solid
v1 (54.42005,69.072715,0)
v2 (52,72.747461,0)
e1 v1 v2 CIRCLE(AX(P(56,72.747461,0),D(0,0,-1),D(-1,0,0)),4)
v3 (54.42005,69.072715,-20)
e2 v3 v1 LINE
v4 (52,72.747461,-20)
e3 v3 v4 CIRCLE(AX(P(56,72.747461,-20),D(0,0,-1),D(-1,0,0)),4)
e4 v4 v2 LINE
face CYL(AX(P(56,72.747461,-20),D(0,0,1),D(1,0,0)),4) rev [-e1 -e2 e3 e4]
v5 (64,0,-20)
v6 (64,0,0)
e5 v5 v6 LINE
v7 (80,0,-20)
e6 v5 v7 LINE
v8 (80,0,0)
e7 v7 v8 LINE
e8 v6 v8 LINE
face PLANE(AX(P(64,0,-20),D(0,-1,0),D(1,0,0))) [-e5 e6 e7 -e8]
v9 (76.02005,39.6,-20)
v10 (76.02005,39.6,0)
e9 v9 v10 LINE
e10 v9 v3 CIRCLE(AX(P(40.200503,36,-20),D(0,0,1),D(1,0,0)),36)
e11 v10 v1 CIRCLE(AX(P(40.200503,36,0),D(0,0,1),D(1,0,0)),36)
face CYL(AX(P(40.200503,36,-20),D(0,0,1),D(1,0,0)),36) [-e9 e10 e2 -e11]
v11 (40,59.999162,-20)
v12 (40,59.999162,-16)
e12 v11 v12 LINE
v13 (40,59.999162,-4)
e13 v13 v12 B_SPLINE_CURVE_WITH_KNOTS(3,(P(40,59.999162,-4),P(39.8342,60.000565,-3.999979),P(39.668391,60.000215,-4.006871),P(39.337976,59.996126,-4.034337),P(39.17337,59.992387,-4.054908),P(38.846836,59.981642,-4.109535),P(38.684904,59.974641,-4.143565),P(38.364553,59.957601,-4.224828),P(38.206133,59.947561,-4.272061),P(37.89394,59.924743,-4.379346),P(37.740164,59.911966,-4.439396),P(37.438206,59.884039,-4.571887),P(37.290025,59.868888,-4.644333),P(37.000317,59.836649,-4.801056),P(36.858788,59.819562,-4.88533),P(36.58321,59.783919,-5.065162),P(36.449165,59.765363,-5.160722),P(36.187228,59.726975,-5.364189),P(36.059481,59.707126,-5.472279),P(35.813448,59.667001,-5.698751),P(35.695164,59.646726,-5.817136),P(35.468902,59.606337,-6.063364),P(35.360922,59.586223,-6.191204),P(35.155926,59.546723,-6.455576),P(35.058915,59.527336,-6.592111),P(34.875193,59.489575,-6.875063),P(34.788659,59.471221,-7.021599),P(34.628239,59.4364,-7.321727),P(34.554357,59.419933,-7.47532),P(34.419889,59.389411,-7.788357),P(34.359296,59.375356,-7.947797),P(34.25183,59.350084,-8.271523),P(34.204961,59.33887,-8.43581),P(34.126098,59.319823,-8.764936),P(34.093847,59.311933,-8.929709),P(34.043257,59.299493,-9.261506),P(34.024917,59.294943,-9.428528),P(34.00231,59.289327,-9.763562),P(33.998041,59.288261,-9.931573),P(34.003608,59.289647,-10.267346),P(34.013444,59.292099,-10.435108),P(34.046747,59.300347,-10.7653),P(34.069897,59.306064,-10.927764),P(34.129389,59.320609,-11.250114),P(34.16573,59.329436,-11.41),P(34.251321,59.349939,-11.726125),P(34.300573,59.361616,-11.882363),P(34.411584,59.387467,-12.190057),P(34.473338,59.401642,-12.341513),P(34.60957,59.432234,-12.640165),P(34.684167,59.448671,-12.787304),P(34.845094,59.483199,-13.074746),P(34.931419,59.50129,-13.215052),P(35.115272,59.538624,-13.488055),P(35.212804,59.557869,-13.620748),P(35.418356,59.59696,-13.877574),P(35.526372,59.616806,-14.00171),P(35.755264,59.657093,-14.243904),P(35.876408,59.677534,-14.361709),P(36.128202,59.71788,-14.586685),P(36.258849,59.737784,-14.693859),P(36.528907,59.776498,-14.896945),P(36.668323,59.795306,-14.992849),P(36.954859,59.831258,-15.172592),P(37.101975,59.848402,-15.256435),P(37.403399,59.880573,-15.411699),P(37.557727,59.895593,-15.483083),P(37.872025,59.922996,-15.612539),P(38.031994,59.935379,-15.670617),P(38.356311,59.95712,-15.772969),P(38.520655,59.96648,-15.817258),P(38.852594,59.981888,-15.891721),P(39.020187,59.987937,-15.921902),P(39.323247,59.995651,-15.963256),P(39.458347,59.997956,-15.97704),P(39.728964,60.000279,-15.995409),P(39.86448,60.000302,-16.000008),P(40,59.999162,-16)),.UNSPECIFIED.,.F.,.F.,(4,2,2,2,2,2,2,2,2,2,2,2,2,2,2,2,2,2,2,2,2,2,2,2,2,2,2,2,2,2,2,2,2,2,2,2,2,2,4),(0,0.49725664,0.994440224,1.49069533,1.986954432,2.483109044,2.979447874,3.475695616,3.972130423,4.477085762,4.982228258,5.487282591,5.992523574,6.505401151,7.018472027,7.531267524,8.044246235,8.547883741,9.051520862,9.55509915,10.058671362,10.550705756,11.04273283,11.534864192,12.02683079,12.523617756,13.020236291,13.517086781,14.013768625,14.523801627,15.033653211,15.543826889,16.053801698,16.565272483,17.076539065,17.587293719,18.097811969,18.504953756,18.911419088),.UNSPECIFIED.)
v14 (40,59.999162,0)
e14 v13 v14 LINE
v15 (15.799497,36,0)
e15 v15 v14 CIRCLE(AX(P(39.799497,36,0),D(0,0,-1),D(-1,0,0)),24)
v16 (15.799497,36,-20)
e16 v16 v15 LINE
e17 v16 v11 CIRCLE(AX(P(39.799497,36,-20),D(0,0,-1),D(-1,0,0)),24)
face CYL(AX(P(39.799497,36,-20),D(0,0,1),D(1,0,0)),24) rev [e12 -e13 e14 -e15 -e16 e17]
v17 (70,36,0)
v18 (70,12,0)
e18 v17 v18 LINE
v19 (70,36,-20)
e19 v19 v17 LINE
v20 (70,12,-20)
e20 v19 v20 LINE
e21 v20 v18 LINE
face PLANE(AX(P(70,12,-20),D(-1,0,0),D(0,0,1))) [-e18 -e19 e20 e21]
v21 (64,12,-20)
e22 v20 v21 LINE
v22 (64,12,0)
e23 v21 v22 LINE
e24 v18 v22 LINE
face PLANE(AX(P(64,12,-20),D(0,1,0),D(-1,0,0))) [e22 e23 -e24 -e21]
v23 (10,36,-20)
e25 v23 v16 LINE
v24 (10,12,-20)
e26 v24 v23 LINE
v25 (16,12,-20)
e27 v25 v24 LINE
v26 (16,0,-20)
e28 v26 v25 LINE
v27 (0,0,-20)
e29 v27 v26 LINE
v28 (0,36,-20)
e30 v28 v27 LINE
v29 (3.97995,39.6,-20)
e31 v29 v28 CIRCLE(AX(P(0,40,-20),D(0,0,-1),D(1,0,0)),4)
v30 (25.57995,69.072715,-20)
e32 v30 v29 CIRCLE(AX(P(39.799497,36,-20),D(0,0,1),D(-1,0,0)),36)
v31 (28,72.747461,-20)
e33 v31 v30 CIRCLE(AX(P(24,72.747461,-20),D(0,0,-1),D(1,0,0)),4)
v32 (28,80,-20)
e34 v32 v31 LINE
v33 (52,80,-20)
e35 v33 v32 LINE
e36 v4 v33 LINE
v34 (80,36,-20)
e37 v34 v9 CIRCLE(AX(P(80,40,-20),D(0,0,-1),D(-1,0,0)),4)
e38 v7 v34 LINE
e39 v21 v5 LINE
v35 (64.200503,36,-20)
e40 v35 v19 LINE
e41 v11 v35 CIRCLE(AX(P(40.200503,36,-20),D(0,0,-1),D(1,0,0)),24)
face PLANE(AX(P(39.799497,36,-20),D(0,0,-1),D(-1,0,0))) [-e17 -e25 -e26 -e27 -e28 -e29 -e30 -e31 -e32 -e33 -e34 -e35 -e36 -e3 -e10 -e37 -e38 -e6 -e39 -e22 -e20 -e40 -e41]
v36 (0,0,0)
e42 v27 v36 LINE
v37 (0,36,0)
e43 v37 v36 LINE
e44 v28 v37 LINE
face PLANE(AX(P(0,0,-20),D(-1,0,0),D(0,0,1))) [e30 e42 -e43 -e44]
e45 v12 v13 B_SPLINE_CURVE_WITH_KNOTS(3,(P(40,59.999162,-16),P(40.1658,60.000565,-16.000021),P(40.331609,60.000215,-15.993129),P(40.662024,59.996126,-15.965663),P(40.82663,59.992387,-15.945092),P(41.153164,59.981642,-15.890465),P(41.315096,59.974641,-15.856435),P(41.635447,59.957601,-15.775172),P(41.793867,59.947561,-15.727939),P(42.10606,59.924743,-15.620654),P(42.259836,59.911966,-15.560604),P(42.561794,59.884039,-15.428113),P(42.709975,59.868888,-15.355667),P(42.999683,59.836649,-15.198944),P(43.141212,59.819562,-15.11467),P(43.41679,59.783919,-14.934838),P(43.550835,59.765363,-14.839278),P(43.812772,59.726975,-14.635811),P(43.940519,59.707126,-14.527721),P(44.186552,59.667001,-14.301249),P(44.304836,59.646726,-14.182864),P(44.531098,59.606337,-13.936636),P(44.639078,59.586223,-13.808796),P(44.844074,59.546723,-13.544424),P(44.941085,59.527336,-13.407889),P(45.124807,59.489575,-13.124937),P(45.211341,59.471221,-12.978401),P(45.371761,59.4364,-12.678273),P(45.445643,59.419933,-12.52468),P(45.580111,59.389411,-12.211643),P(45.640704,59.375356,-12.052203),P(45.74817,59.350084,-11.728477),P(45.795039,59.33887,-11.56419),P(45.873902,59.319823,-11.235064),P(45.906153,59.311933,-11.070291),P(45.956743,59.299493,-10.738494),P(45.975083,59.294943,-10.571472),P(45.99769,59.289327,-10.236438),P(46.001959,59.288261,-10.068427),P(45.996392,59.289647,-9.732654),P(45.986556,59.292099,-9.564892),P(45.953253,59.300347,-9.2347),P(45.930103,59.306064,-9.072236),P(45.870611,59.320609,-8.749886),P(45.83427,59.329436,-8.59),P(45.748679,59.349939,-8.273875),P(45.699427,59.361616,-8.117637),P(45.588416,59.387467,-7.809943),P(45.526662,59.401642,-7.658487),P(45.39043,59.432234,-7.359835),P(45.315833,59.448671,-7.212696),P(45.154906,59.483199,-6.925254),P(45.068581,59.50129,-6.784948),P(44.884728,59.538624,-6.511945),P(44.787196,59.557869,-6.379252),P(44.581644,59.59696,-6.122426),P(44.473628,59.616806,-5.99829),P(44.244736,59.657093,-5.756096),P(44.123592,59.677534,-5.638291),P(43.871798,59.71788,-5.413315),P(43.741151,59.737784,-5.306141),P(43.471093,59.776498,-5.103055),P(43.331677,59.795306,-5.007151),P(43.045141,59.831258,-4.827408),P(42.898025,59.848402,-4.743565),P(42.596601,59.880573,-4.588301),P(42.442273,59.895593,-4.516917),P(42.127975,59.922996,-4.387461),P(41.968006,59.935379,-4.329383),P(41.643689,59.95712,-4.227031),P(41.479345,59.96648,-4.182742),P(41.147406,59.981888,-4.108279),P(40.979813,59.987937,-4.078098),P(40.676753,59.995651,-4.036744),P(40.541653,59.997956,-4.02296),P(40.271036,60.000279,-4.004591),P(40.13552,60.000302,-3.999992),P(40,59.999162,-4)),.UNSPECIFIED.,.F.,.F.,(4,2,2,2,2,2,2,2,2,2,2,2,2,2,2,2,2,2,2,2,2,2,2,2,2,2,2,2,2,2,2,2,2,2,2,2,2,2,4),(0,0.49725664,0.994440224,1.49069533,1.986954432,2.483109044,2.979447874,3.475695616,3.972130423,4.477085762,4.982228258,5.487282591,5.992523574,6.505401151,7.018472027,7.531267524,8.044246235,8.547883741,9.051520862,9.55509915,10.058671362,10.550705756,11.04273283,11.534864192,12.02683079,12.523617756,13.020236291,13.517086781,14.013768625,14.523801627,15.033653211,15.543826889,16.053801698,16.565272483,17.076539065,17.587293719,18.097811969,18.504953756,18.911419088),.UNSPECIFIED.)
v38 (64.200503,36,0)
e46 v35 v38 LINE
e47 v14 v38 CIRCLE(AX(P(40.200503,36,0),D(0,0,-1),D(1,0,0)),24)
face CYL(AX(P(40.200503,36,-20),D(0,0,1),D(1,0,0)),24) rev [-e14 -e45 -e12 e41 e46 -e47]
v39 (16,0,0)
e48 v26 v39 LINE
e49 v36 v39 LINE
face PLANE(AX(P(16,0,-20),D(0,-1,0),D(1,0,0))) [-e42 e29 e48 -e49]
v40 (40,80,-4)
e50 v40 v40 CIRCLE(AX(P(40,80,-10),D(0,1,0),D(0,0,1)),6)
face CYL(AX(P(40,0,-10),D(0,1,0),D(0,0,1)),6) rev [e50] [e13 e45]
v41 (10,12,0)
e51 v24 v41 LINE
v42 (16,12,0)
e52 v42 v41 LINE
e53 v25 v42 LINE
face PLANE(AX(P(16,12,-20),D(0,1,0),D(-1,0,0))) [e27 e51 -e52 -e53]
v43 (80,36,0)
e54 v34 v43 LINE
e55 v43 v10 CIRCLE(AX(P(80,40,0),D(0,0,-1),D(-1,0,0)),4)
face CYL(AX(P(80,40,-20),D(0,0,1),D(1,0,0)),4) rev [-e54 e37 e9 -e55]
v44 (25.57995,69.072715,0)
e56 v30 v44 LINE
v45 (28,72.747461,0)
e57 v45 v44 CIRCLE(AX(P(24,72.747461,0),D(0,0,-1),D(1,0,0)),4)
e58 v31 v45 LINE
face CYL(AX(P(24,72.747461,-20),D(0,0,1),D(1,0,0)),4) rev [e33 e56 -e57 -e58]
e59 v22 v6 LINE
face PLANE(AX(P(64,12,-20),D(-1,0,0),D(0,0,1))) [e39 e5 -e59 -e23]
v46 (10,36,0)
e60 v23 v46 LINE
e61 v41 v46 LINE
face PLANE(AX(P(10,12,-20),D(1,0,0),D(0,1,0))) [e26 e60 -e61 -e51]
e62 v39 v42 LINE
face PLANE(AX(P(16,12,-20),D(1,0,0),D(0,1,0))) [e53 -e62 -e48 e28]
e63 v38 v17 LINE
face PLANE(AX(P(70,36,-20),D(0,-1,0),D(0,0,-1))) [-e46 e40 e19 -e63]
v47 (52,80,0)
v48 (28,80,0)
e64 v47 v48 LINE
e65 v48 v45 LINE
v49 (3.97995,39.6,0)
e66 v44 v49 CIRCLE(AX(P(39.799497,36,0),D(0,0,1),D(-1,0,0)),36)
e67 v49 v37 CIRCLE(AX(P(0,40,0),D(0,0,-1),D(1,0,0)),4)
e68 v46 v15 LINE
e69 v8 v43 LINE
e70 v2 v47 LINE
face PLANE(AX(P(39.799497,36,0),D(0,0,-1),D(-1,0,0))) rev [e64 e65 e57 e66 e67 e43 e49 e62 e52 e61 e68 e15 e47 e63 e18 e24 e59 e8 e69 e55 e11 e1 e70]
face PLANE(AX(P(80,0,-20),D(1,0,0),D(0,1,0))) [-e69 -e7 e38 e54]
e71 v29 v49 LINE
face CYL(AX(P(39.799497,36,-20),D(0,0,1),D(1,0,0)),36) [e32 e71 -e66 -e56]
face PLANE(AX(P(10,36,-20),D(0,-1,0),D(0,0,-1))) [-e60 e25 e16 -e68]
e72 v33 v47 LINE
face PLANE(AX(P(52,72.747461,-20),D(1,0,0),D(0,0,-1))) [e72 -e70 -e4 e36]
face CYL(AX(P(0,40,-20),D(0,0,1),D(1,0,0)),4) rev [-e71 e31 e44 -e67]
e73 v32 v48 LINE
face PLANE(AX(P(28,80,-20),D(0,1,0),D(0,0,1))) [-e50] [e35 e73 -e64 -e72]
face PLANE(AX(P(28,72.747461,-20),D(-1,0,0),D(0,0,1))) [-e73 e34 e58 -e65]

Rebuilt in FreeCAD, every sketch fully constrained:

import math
import FreeCAD as App
import Part
import Sketcher
from FreeCAD import Vector

doc = App.newDocument("Part")
body = doc.addObject("PartDesign::Body", "Body")

sketch1 = doc.addObject("Sketcher::SketchObject", "Sketch")
body.addObject(sketch1)
sketch1.AttachmentSupport = (doc.XY_Plane, [""])
sketch1.MapMode = "FlatFace"
sketch1.addGeometry([
    Part.LineSegment(Vector(28, 80, 0), Vector(28, 72.747461, 0)),
    Part.ArcOfCircle(Part.Circle(Vector(24, 72.747461, 0), Vector(0, 0, 1), 4), math.radians(-66.734809), math.radians(0)),
    Part.ArcOfCircle(Part.Circle(Vector(39.799497, 36, 0), Vector(0, 0, 1), 36), math.radians(113.265191), math.radians(174.26083)),
    Part.ArcOfCircle(Part.Circle(Vector(0, 40, 0), Vector(0, 0, 1), 4), math.radians(-90), math.radians(-5.73917)),
    Part.LineSegment(Vector(0, 36, 0), Vector(0, 0, 0)),
    Part.LineSegment(Vector(0, 0, 0), Vector(16, 0, 0)),
    Part.LineSegment(Vector(16, 0, 0), Vector(16, 12, 0)),
    Part.LineSegment(Vector(16, 12, 0), Vector(10, 12, 0)),
    Part.LineSegment(Vector(10, 12, 0), Vector(10, 36, 0)),
    Part.LineSegment(Vector(10, 36, 0), Vector(15.799497, 36, 0)),
    Part.ArcOfCircle(Part.Circle(Vector(39.799497, 36, 0), Vector(0, 0, 1), 24), math.radians(89.52133), math.radians(180)),
    Part.ArcOfCircle(Part.Circle(Vector(40.200503, 36, 0), Vector(0, 0, 1), 24), math.radians(0), math.radians(90.47867)),
    Part.LineSegment(Vector(64.200503, 36, 0), Vector(70, 36, 0)),
    Part.LineSegment(Vector(70, 36, 0), Vector(70, 12, 0)),
    Part.LineSegment(Vector(70, 12, 0), Vector(64, 12, 0)),
    Part.LineSegment(Vector(64, 12, 0), Vector(64, 0, 0)),
    Part.LineSegment(Vector(64, 0, 0), Vector(80, 0, 0)),
    Part.LineSegment(Vector(80, 0, 0), Vector(80, 36, 0)),
    Part.ArcOfCircle(Part.Circle(Vector(80, 40, 0), Vector(0, 0, 1), 4), math.radians(-174.26083), math.radians(-90)),
    Part.ArcOfCircle(Part.Circle(Vector(40.200503, 36, 0), Vector(0, 0, 1), 36), math.radians(5.73917), math.radians(66.734809)),
    Part.ArcOfCircle(Part.Circle(Vector(56, 72.747461, 0), Vector(0, 0, 1), 4), math.radians(-180), math.radians(-113.265191)),
    Part.LineSegment(Vector(52, 72.747461, 0), Vector(52, 80, 0)),
    Part.LineSegment(Vector(52, 80, 0), Vector(28, 80, 0)),
], False)
sketch1.addConstraint([
    Sketcher.Constraint("Tangent", 0, 2, 1, 2),
    Sketcher.Constraint("Tangent", 1, 1, 2, 1),
    Sketcher.Constraint("Tangent", 2, 2, 3, 2),
    Sketcher.Constraint("Coincident", 3, 1, 4, 1),
    Sketcher.Constraint("Coincident", 4, 2, 5, 1),
    Sketcher.Constraint("Coincident", 5, 2, 6, 1),
    Sketcher.Constraint("Coincident", 6, 2, 7, 1),
    Sketcher.Constraint("Coincident", 7, 2, 8, 1),
    Sketcher.Constraint("Coincident", 8, 2, 9, 1),
    Sketcher.Constraint("Coincident", 9, 2, 10, 2),
    Sketcher.Constraint("Coincident", 10, 1, 11, 2),
    Sketcher.Constraint("Coincident", 11, 1, 12, 1),
    Sketcher.Constraint("Coincident", 12, 2, 13, 1),
    Sketcher.Constraint("Coincident", 13, 2, 14, 1),
    Sketcher.Constraint("Coincident", 14, 2, 15, 1),
    Sketcher.Constraint("Coincident", 15, 2, 16, 1),
    Sketcher.Constraint("Coincident", 16, 2, 17, 1),
    Sketcher.Constraint("Coincident", 17, 2, 18, 2),
    Sketcher.Constraint("Tangent", 18, 1, 19, 1),
    Sketcher.Constraint("Tangent", 19, 2, 20, 2),
    Sketcher.Constraint("Tangent", 20, 1, 21, 1),
    Sketcher.Constraint("Coincident", 21, 2, 22, 1),
    Sketcher.Constraint("Coincident", 22, 2, 0, 1),
    Sketcher.Constraint("Vertical", 0),
    Sketcher.Constraint("Vertical", 4),
    Sketcher.Constraint("Horizontal", 5),
    Sketcher.Constraint("Vertical", 6),
    Sketcher.Constraint("Horizontal", 7),
    Sketcher.Constraint("Vertical", 8),
    Sketcher.Constraint("Horizontal", 9),
    Sketcher.Constraint("Horizontal", 12),
    Sketcher.Constraint("Vertical", 13),
    Sketcher.Constraint("Horizontal", 14),
    Sketcher.Constraint("Vertical", 15),
    Sketcher.Constraint("Horizontal", 16),
    Sketcher.Constraint("Vertical", 17),
    Sketcher.Constraint("Vertical", 21),
    Sketcher.Constraint("Horizontal", 22),
    Sketcher.Constraint("Coincident", 4, 2, -1, 1),
    Sketcher.Constraint("Coincident", 10, 3, 2, 3),
    Sketcher.Constraint("Coincident", 19, 3, 11, 3),
    Sketcher.Constraint("Equal", 1, 3),
    Sketcher.Constraint("Equal", 10, 11),
    Sketcher.Constraint("Equal", 3, 18),
    Sketcher.Constraint("Equal", 2, 19),
    Sketcher.Constraint("Equal", 18, 20),
    Sketcher.Constraint("PointOnObject", 3, 3, -2),
    Sketcher.Constraint("PointOnObject", 15, 2, -1),
    Sketcher.Constraint("Horizontal", 10, 3, 11, 3),
    Sketcher.Constraint("Horizontal", 3, 3, 18, 3),
    Sketcher.Constraint("Horizontal", 1, 3, 20, 3),
    Sketcher.Constraint("Horizontal", 19, 3, 3, 1),
    Sketcher.Constraint("Horizontal", 3, 1, 8, 2),
    Sketcher.Constraint("Horizontal", 9, 2, 11, 1),
    Sketcher.Constraint("Horizontal", 7, 2, 13, 2),
    Sketcher.Constraint("Vertical", 18, 3, 16, 2),
    Sketcher.Constraint("Equal", 9, 12),
    Sketcher.Constraint("Equal", 7, 14),
    Sketcher.Constraint("Equal", 22, 8),
    Sketcher.Constraint("Radius", 1, 4.0),
    Sketcher.Constraint("Radius", 2, 36.0),
    Sketcher.Constraint("Radius", 10, 24.0),
    Sketcher.Constraint("DistanceX", 5, 1, 5, 2, 16.0),
    Sketcher.Constraint("DistanceX", 7, 2, 7, 1, 6.0),
    Sketcher.Constraint("DistanceX", 22, 2, 22, 1, 24.0),
    Sketcher.Constraint("DistanceY", 4, 2, 4, 1, 36.0),
    Sketcher.Constraint("DistanceX", -1, 1, 1, 3, 24.0),
    Sketcher.Constraint("DistanceY", -1, 1, 21, 2, 80.0),
])
pad1 = doc.addObject("PartDesign::Pad", "Pad")
body.addObject(pad1)
pad1.Profile = sketch1
pad1.Length = 20
pad1.Reversed = True

sketch2 = doc.addObject("Sketcher::SketchObject", "Sketch001")
body.addObject(sketch2)
sketch2.AttachmentSupport = (doc.XZ_Plane, [""])
sketch2.MapMode = "FlatFace"
sketch2.AttachmentOffset = App.Placement(Vector(0, 0, -80), App.Rotation())
sketch2.addGeometry(Part.Circle(Vector(40, -10, 0), Vector(0, 0, 1), 6), False)
sketch2.addConstraint([
    Sketcher.Constraint("Diameter", 0, 12.0),
    Sketcher.Constraint("DistanceX", -1, 1, 0, 3, 40.0),
    Sketcher.Constraint("DistanceY", 0, 3, -1, 1, 10.0),
])
pocket1 = doc.addObject("PartDesign::Pocket", "Pocket")
body.addObject(pocket1)
pocket1.Profile = sketch2
pocket1.Type = "ThroughAll"
pocket1.Reversed = True

doc.recompute()
